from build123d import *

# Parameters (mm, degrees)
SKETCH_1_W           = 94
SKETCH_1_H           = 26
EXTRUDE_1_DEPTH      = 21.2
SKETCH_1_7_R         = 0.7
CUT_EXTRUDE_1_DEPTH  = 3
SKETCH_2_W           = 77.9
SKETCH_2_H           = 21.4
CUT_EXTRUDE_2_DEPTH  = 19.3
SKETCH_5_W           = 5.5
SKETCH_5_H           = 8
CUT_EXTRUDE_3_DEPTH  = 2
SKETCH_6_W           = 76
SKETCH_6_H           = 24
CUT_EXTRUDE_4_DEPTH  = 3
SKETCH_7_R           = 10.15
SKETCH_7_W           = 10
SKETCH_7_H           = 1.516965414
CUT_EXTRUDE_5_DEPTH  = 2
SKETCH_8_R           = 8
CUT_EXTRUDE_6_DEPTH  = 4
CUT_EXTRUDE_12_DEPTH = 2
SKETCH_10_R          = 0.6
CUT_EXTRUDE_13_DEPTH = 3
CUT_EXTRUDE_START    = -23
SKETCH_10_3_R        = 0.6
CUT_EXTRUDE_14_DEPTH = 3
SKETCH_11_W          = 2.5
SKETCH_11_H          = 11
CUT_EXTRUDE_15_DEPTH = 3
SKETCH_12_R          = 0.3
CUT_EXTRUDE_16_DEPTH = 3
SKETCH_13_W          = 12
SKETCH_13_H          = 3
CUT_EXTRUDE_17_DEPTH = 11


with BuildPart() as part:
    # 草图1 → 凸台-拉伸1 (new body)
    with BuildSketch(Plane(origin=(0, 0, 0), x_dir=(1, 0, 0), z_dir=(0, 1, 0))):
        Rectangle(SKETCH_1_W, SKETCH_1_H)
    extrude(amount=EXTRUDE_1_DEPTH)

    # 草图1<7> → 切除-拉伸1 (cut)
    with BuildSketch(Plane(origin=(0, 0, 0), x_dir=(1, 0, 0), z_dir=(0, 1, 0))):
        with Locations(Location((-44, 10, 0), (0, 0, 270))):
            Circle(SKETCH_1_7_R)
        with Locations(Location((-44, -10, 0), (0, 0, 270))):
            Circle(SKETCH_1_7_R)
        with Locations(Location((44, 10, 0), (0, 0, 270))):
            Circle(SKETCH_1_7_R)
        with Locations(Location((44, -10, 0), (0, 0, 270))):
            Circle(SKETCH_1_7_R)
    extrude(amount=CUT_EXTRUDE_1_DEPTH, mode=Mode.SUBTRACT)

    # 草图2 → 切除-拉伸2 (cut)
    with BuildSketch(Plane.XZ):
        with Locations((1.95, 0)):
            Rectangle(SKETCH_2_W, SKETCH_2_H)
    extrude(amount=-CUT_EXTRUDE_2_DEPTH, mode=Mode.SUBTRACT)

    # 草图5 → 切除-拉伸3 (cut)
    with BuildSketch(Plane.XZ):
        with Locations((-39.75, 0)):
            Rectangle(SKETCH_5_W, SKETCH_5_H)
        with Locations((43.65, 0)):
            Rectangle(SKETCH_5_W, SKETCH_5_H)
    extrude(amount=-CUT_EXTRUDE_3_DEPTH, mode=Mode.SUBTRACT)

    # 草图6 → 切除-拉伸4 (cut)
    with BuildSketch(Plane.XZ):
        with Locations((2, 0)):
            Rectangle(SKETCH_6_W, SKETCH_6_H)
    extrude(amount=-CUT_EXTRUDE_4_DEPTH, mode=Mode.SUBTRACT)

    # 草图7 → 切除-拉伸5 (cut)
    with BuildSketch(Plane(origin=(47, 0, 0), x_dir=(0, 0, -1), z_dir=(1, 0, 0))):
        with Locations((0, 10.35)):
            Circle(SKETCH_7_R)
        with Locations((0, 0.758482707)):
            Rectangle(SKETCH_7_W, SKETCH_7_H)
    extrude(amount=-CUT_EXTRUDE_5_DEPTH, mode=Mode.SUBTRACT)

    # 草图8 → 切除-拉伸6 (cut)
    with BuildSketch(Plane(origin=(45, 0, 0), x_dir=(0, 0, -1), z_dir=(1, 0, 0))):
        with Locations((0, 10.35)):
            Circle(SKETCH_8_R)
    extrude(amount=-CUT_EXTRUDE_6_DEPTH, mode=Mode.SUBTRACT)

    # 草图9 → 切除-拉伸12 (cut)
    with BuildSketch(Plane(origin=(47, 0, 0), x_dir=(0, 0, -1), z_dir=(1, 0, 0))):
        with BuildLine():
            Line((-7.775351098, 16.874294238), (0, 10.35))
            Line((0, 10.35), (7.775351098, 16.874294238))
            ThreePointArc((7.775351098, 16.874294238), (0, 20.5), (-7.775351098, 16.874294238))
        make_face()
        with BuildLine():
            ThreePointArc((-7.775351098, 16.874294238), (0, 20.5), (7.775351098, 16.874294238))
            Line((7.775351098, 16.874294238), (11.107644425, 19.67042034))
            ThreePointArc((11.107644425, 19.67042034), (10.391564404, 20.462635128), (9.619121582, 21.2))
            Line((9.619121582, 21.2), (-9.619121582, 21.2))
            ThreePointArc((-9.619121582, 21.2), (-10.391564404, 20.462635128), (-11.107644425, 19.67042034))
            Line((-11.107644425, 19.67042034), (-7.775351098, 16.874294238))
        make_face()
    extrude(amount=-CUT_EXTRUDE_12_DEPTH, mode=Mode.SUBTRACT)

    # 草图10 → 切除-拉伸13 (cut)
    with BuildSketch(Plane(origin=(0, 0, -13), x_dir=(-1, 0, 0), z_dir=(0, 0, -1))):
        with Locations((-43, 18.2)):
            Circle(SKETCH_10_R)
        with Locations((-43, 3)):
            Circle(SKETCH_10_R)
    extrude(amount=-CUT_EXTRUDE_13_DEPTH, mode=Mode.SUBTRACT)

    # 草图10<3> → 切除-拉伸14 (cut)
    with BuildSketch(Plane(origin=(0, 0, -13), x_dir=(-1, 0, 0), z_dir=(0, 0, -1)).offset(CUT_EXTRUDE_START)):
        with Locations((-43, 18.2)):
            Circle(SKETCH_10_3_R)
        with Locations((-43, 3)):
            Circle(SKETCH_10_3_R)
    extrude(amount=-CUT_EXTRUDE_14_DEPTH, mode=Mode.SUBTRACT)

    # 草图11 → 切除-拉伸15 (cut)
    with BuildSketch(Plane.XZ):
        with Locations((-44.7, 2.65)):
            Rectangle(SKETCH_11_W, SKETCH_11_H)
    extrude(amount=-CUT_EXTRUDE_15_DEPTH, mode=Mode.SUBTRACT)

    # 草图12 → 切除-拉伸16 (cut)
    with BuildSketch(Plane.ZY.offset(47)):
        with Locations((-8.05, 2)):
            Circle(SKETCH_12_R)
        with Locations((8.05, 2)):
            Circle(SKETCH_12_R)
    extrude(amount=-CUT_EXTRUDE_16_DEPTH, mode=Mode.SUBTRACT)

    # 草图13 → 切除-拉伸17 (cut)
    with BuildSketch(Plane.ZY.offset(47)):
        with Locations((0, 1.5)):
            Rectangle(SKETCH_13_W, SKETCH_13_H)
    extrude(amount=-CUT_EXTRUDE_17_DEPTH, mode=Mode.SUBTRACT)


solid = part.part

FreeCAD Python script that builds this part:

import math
import FreeCAD as App
import Part
import Sketcher
from FreeCAD import Vector
Q = App.Units.Quantity


def add_polygon(sketch, points):
    """Adds a closed chain of lines whose ends are joined by coincident constraints."""
    first, n = sketch.GeometryCount, len(points)
    for a, b in zip(points, points[1:] + points[:1]):
        sketch.addGeometry(Part.LineSegment(App.Vector(*a, 0), App.Vector(*b, 0)), False)
    for i in range(n):
        sketch.addConstraint(Sketcher.Constraint("Coincident", first + i, 2, first + (i + 1) % n, 1))

doc = App.newDocument("Part")
body = doc.addObject("PartDesign::Body", "Body")

# Sketch on XZ plane
sketch1 = body.newObject("Sketcher::SketchObject", "Sketch")
sketch1.AttachmentSupport = (doc.getObject("XZ_Plane"), [""])
sketch1.MapMode = "FlatFace"
add_polygon(sketch1, [(-47, -13), (-47, 13), (47, 13), (47, -13)])  # lines 0-3
sketch1.addConstraint([
    Sketcher.Constraint("Vertical", 0),
    Sketcher.Constraint("Horizontal", 1),
    Sketcher.Constraint("Vertical", 2),
    Sketcher.Constraint("Horizontal", 3),
    Sketcher.Constraint("Symmetric", 0, 2, 2, 2, -1, 1),
    Sketcher.Constraint("DistanceX", 1, 1, 1, 2, 94.0),
    Sketcher.Constraint("DistanceY", 0, 1, 0, 2, 26.0),
])
pad1 = body.newObject("PartDesign::Pad", "Pad")
pad1.Profile = sketch1
pad1.Length = 21.2
pad1.Reversed = True

# Sketch on XZ plane
sketch2 = body.newObject("Sketcher::SketchObject", "Sketch001")
sketch2.AttachmentSupport = (doc.getObject("XZ_Plane"), [""])
sketch2.MapMode = "FlatFace"
sketch2.addGeometry([
    Part.Circle(Vector(-44, -10, 0), Vector(0, 0, 1), 0.7),
    Part.Circle(Vector(-44, 10, 0), Vector(0, 0, 1), 0.7),
    Part.Circle(Vector(44, -10, 0), Vector(0, 0, 1), 0.7),
    Part.Circle(Vector(44, 10, 0), Vector(0, 0, 1), 0.7),
], False)
sketch2.addConstraint([
    Sketcher.Constraint("Equal", 0, 1),
    Sketcher.Constraint("Equal", 1, 2),
    Sketcher.Constraint("Equal", 2, 3),
    Sketcher.Constraint("Symmetric", 1, 3, 2, 3, -1, 1),
    Sketcher.Constraint("Symmetric", 0, 3, 3, 3, -1, 1),
    Sketcher.Constraint("Symmetric", 0, 3, 2, 3, -2),
    Sketcher.Constraint("Diameter", 0, 1.4),
    Sketcher.Constraint("DistanceX", 0, 3, -1, 1, 44.0),
    Sketcher.Constraint("DistanceY", 0, 3, -1, 1, 10.0),
])
pocket1 = body.newObject("PartDesign::Pocket", "Pocket")
pocket1.Profile = sketch2
pocket1.Length = 3

# Sketch on XZ plane
sketch3 = body.newObject("Sketcher::SketchObject", "Sketch002")
sketch3.AttachmentSupport = (doc.getObject("XZ_Plane"), [""])
sketch3.MapMode = "FlatFace"
add_polygon(sketch3, [(-37, 11), (-37, -11), (41, -11), (41, 11)])  # lines 0-3
sketch3.addConstraint([
    Sketcher.Constraint("Vertical", 0),
    Sketcher.Constraint("Horizontal", 1),
    Sketcher.Constraint("Vertical", 2),
    Sketcher.Constraint("Horizontal", 3),
    Sketcher.Constraint("DistanceX", 1, 1, 1, 2, 77.9),
    Sketcher.Constraint("DistanceY", 0, 2, 0, 1, 21.4),
    Sketcher.Constraint("DistanceX", 0, 2, -1, 1, 37.0),
    Sketcher.Constraint("DistanceY", 0, 2, -1, 1, 10.7),
])
pocket2 = body.newObject("PartDesign::Pocket", "Pocket001")
pocket2.Profile = sketch3
pocket2.Length = 19.3

# Sketch on XZ plane
sketch4 = body.newObject("Sketcher::SketchObject", "Sketch003")
sketch4.AttachmentSupport = (doc.getObject("XZ_Plane"), [""])
sketch4.MapMode = "FlatFace"
add_polygon(sketch4, [(-42, 4), (-42, -4), (-37, -4), (-37, 4)])  # lines 0-3
add_polygon(sketch4, [(41, 4), (41, -4), (46, -4), (46, 4)])  # lines 4-7
sketch4.addConstraint([
    Sketcher.Constraint("Vertical", 0),
    Sketcher.Constraint("Horizontal", 1),
    Sketcher.Constraint("Vertical", 2),
    Sketcher.Constraint("Horizontal", 3),
    Sketcher.Constraint("Vertical", 4),
    Sketcher.Constraint("Horizontal", 5),
    Sketcher.Constraint("Vertical", 6),
    Sketcher.Constraint("Horizontal", 7),
    Sketcher.Constraint("Horizontal", 1, 2, 4, 2),
    Sketcher.Constraint("Horizontal", 3, 2, 6, 2),
    Sketcher.Constraint("Equal", 3, 5),
    Sketcher.Constraint("DistanceY", 0, 2, 0, 1, 8.0),
    Sketcher.Constraint("DistanceX", 1, 1, 1, 2, 5.5),
    Sketcher.Constraint("DistanceY", 0, 2, -1, 1, 4.0),
    Sketcher.Constraint("DistanceX", 1, 2, -1, 1, 37.0),
    Sketcher.Constraint("DistanceX", -1, 1, 4, 2, 40.9),
])
pocket3 = body.newObject("PartDesign::Pocket", "Pocket002")
pocket3.Profile = sketch4
pocket3.Length = 2

# Sketch on XZ plane
sketch5 = body.newObject("Sketcher::SketchObject", "Sketch004")
sketch5.AttachmentSupport = (doc.getObject("XZ_Plane"), [""])
sketch5.MapMode = "FlatFace"
add_polygon(sketch5, [(-36, 12), (-36, -12), (40, -12), (40, 12)])  # lines 0-3
sketch5.addConstraint([
    Sketcher.Constraint("Vertical", 0),
    Sketcher.Constraint("Horizontal", 1),
    Sketcher.Constraint("Vertical", 2),
    Sketcher.Constraint("Horizontal", 3),
    Sketcher.Constraint("DistanceX", 1, 1, 1, 2, 76.0),
    Sketcher.Constraint("DistanceY", 0, 2, 0, 1, 24.0),
    Sketcher.Constraint("DistanceX", 0, 2, -1, 1, 36.0),
    Sketcher.Constraint("DistanceY", 0, 2, -1, 1, 12.0),
])
pocket4 = body.newObject("PartDesign::Pocket", "Pocket003")
pocket4.Profile = sketch5
pocket4.Length = 3

# Sketch on YZ plane
sketch6 = body.newObject("Sketcher::SketchObject", "Sketch005")
sketch6.AttachmentSupport = (doc.getObject("YZ_Plane"), [""])
sketch6.MapMode = "FlatFace"
sketch6.AttachmentOffset = App.Placement(Vector(0, 0, 47), App.Rotation())
sketch6.addGeometry([
    Part.ArcOfCircle(Part.Circle(Vector(10.3, 0, 0), Vector(0, 0, 1), 10.2), math.radians(-150), math.radians(150)),
    Part.LineSegment(Vector(1.5, 5, 0), Vector(0, 5, 0)),
    Part.LineSegment(Vector(0, 5, 0), Vector(0, -5, 0)),
    Part.LineSegment(Vector(0, -5, 0), Vector(1.5, -5, 0)),
], False)
sketch6.addConstraint([
    Sketcher.Constraint("Coincident", 0, 2, 1, 1),
    Sketcher.Constraint("Coincident", 1, 2, 2, 1),
    Sketcher.Constraint("Coincident", 2, 2, 3, 1),
    Sketcher.Constraint("Coincident", 3, 2, 0, 1),
    Sketcher.Constraint("Horizontal", 1),
    Sketcher.Constraint("Vertical", 2),
    Sketcher.Constraint("Horizontal", 3),
    Sketcher.Constraint("Symmetric", 1, 2, 2, 2, -1, 1),
    Sketcher.Constraint("PointOnObject", 0, 3, -1),
    Sketcher.Constraint("DistanceY", 2, 2, 2, 1, 10.0),
    Sketcher.Constraint("Radius", 0, 10.15),
    Sketcher.Constraint("DistanceX", -1, 1, 0, 3, 10.35),
])
pocket5 = body.newObject("PartDesign::Pocket", "Pocket004")
pocket5.Profile = sketch6
pocket5.Length = 2

# Sketch on YZ plane
sketch7 = body.newObject("Sketcher::SketchObject", "Sketch006")
sketch7.AttachmentSupport = (doc.getObject("YZ_Plane"), [""])
sketch7.MapMode = "FlatFace"
sketch7.AttachmentOffset = App.Placement(Vector(0, 0, 45), App.Rotation())
sketch7.addGeometry(Part.Circle(Vector(10, 0, 0), Vector(0, 0, 1), 8), False)
sketch7.addConstraint([
    Sketcher.Constraint("PointOnObject", 0, 3, -1),
    Sketcher.Constraint("Diameter", 0, 16.0),
    Sketcher.Constraint("DistanceX", -1, 1, 0, 3, 10.35),
])
pocket6 = body.newObject("PartDesign::Pocket", "Pocket005")
pocket6.Profile = sketch7
pocket6.Length = 4

# Sketch on YZ plane
sketch8 = body.newObject("Sketcher::SketchObject", "Sketch007")
sketch8.AttachmentSupport = (doc.getObject("YZ_Plane"), [""])
sketch8.MapMode = "FlatFace"
sketch8.AttachmentOffset = App.Placement(Vector(0, 0, 47), App.Rotation())
sketch8.addGeometry([
    Part.LineSegment(Vector(16.9, 7.8, 0), Vector(10.3, 0, 0)),  # 0
    Part.LineSegment(Vector(10.3, 0, 0), Vector(16.9, -7.8, 0)),  # 1
    Part.LineSegment(Vector(16.9, -7.8, 0), Vector(19.7, -11.1, 0)),  # 2
    Part.ArcOfCircle(Part.Circle(Vector(10.3, 0, 0), Vector(0, 0, 1), 14.5), math.radians(-50), math.radians(-41.56)),  # 3
    Part.LineSegment(Vector(21.2, -9.6, 0), Vector(21.2, 9.6, 0)),  # 4
    Part.ArcOfCircle(Part.Circle(Vector(10.3, 0, 0), Vector(0, 0, 1), 14.5), math.radians(41.56), math.radians(50)),  # 5
    Part.LineSegment(Vector(19.7, 11.1, 0), Vector(16.9, 7.8, 0)),  # 6
], False)
sketch8.addConstraint([
    Sketcher.Constraint("Coincident", 0, 2, 1, 1),
    Sketcher.Constraint("Coincident", 1, 2, 2, 1),
    Sketcher.Constraint("Coincident", 2, 2, 3, 1),
    Sketcher.Constraint("Coincident", 3, 2, 4, 1),
    Sketcher.Constraint("Coincident", 4, 2, 5, 1),
    Sketcher.Constraint("Coincident", 5, 2, 6, 1),
    Sketcher.Constraint("Coincident", 6, 2, 0, 1),
    Sketcher.Constraint("Vertical", 4),
    Sketcher.Constraint("Coincident", 5, 3, 3, 3),
    Sketcher.Constraint("Coincident", 0, 2, 3, 3),
    Sketcher.Constraint("Equal", 3, 5),
    Sketcher.Constraint("Symmetric", 2, 2, 5, 2, -1),
    Sketcher.Constraint("Symmetric", 1, 2, 6, 2, -1),
    Sketcher.Constraint("Parallel", 1, 2),
    Sketcher.Constraint("Radius", 3, 14.5),
    Sketcher.Constraint("Angle", 0, Q("-130 deg")),
    Sketcher.Constraint("DistanceX", -1, 1, 3, 2, 21.2),
    Sketcher.Constraint("Distance", 0, 10.15),
    Sketcher.Constraint("DistanceX", -1, 1, 3, 3, 10.35),
])
pocket7 = body.newObject("PartDesign::Pocket", "Pocket006")
pocket7.Profile = sketch8
pocket7.Length = 2

# Sketch on XY plane
sketch9 = body.newObject("Sketcher::SketchObject", "Sketch008")
sketch9.AttachmentSupport = (doc.getObject("XY_Plane"), [""])
sketch9.MapMode = "FlatFace"
sketch9.AttachmentOffset = App.Placement(Vector(0, 0, -13), App.Rotation())
sketch9.addGeometry([
    Part.Circle(Vector(43, 18.2, 0), Vector(0, 0, 1), 0.6),
    Part.Circle(Vector(43, 3, 0), Vector(0, 0, 1), 0.6),
], False)
sketch9.addConstraint([
    Sketcher.Constraint("Equal", 0, 1),
    Sketcher.Constraint("Vertical", 0, 3, 1, 3),
    Sketcher.Constraint("Diameter", 0, 1.2),
    Sketcher.Constraint("DistanceX", -1, 1, 0, 3, 43.0),
    Sketcher.Constraint("DistanceY", -1, 1, 1, 3, 3.0),
    Sketcher.Constraint("DistanceY", -1, 1, 0, 3, 18.2),
])
pocket8 = body.newObject("PartDesign::Pocket", "Pocket007")
pocket8.Profile = sketch9
pocket8.Length = 3
pocket8.Reversed = True

# Sketch on XY plane
sketch10 = body.newObject("Sketcher::SketchObject", "Sketch009")
sketch10.AttachmentSupport = (doc.getObject("XY_Plane"), [""])
sketch10.MapMode = "FlatFace"
sketch10.AttachmentOffset = App.Placement(Vector(0, 0, 10), App.Rotation())
sketch10.addGeometry([
    Part.Circle(Vector(43, 18.2, 0), Vector(0, 0, 1), 0.6),
    Part.Circle(Vector(43, 3, 0), Vector(0, 0, 1), 0.6),
], False)
sketch10.addConstraint([
    Sketcher.Constraint("Equal", 0, 1),
    Sketcher.Constraint("Vertical", 0, 3, 1, 3),
    Sketcher.Constraint("Diameter", 0, 1.2),
    Sketcher.Constraint("DistanceX", -1, 1, 0, 3, 43.0),
    Sketcher.Constraint("DistanceY", -1, 1, 1, 3, 3.0),
    Sketcher.Constraint("DistanceY", -1, 1, 0, 3, 18.2),
])
pocket9 = body.newObject("PartDesign::Pocket", "Pocket008")
pocket9.Profile = sketch10
pocket9.Length = 3
pocket9.Reversed = True

# Sketch on XZ plane
sketch11 = body.newObject("Sketcher::SketchObject", "Sketch010")
sketch11.AttachmentSupport = (doc.getObject("XZ_Plane"), [""])
sketch11.MapMode = "FlatFace"
add_polygon(sketch11, [(-46, 8.2), (-46, -2.9), (-43.5, -2.9), (-43.5, 8.2)])  # lines 0-3
sketch11.addConstraint([
    Sketcher.Constraint("Vertical", 0),
    Sketcher.Constraint("Horizontal", 1),
    Sketcher.Constraint("Vertical", 2),
    Sketcher.Constraint("Horizontal", 3),
    Sketcher.Constraint("DistanceY", 0, 2, 0, 1, 11.0),
    Sketcher.Constraint("DistanceX", 1, 1, 1, 2, 2.5),
    Sketcher.Constraint("DistanceX", 0, 2, -1, 1, 45.95),
    Sketcher.Constraint("DistanceY", 0, 2, -1, 1, 2.85),
])
pocket10 = body.newObject("PartDesign::Pocket", "Pocket009")
pocket10.Profile = sketch11
pocket10.Length = 3

# Sketch on YZ plane
sketch12 = body.newObject("Sketcher::SketchObject", "Sketch011")
sketch12.AttachmentSupport = (doc.getObject("YZ_Plane"), [""])
sketch12.MapMode = "FlatFace"
sketch12.AttachmentOffset = App.Placement(Vector(0, 0, -47), App.Rotation())
sketch12.addGeometry([
    Part.Circle(Vector(2, -8.05, 0), Vector(0, 0, 1), 0.3),
    Part.Circle(Vector(2, 8.05, 0), Vector(0, 0, 1), 0.3),
], False)
sketch12.addConstraint([
    Sketcher.Constraint("Equal", 0, 1),
    Sketcher.Constraint("Symmetric", 0, 3, 1, 3, -1),
    Sketcher.Constraint("Diameter", 0, 0.6),
    Sketcher.Constraint("DistanceX", -1, 1, 0, 3, 2.0),
    Sketcher.Constraint("DistanceY", 0, 3, 1, 3, 16.1),
])
pocket11 = body.newObject("PartDesign::Pocket", "Pocket010")
pocket11.Profile = sketch12
pocket11.Length = 3
pocket11.Reversed = True

# Sketch on YZ plane
sketch13 = body.newObject("Sketcher::SketchObject", "Sketch012")
sketch13.AttachmentSupport = (doc.getObject("YZ_Plane"), [""])
sketch13.MapMode = "FlatFace"
sketch13.AttachmentOffset = App.Placement(Vector(0, 0, -47), App.Rotation())
add_polygon(sketch13, [(3, -6), (0, -6), (0, 6), (3, 6)])  # lines 0-3
sketch13.addConstraint([
    Sketcher.Constraint("Horizontal", 0),
    Sketcher.Constraint("Vertical", 1),
    Sketcher.Constraint("Horizontal", 2),
    Sketcher.Constraint("Vertical", 3),
    Sketcher.Constraint("Symmetric", 0, 2, 1, 2, -1, 1),
    Sketcher.Constraint("DistanceX", 0, 2, 0, 1, 3.0),
    Sketcher.Constraint("DistanceY", 1, 1, 1, 2, 12.0),
])
pocket12 = body.newObject("PartDesign::Pocket", "Pocket011")
pocket12.Profile = sketch13
pocket12.Length = 11
pocket12.Reversed = True

doc.recompute()
